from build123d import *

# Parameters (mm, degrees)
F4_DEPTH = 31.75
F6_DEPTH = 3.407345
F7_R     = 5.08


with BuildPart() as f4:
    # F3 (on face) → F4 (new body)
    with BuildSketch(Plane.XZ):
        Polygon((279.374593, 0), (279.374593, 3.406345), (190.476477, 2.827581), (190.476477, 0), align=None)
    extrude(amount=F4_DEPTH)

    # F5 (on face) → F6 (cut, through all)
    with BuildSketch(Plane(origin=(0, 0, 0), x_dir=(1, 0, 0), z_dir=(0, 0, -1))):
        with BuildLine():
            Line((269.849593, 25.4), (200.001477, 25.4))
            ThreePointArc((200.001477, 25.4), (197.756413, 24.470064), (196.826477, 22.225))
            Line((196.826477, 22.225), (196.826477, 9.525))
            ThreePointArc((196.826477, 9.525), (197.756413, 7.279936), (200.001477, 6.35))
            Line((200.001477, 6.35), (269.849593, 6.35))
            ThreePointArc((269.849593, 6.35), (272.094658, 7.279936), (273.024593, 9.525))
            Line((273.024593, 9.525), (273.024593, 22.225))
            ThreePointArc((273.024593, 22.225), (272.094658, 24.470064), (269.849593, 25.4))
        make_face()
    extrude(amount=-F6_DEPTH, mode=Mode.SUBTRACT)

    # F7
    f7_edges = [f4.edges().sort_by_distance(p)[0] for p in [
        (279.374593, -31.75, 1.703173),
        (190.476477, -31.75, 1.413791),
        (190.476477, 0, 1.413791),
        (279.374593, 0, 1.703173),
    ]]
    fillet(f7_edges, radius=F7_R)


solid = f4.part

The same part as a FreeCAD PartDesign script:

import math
import FreeCAD as App
import Part
import Sketcher
Q = App.Units.Quantity


def edges_at(feature, points):
    """Names of the edges that pass closest to the given points."""
    edges = feature.Shape.Edges
    near = lambda p: min(range(len(edges)), key=lambda i: edges[i].distToShape(Part.Vertex(*p))[0])
    return sorted({f"Edge{near(p) + 1}" for p in points})

doc = App.newDocument("Part")
body = doc.addObject("PartDesign::Body", "Body")

# Sketch on XZ plane
sketch1 = body.newObject("Sketcher::SketchObject", "Sketch")
sketch1.AttachmentSupport = (doc.getObject("XZ_Plane"), [""])
sketch1.MapMode = "FlatFace"
sketch1.addGeometry(Part.LineSegment(App.Vector(279.4, 0, 0), App.Vector(279.4, 3.4, 0)), False)
sketch1.addGeometry(Part.LineSegment(App.Vector(279.4, 3.4, 0), App.Vector(190.5, 2.8, 0)), False)
sketch1.addGeometry(Part.LineSegment(App.Vector(190.5, 2.8, 0), App.Vector(190.5, 0, 0)), False)
sketch1.addGeometry(Part.LineSegment(App.Vector(190.5, 0, 0), App.Vector(279.4, 0, 0)), False)
sketch1.addConstraint(Sketcher.Constraint("Coincident", 0, 2, 1, 1))
sketch1.addConstraint(Sketcher.Constraint("Coincident", 1, 2, 2, 1))
sketch1.addConstraint(Sketcher.Constraint("Coincident", 2, 2, 3, 1))
sketch1.addConstraint(Sketcher.Constraint("Coincident", 3, 2, 0, 1))
sketch1.addConstraint(Sketcher.Constraint("Vertical", 0))
sketch1.addConstraint(Sketcher.Constraint("Vertical", 2))
sketch1.addConstraint(Sketcher.Constraint("Horizontal", 3))
sketch1.addConstraint(Sketcher.Constraint("PointOnObject", 2, 2, -1))
sketch1.addConstraint(Sketcher.Constraint("Distance", 1, Q("3.5 in")))
sketch1.addConstraint(Sketcher.Constraint("DistanceY", 2, 2, 2, 1, 2.827581))
sketch1.addConstraint(Sketcher.Constraint("DistanceX", 3, 1, 3, 2, 88.898116))
sketch1.addConstraint(Sketcher.Constraint("DistanceX", -1, 1, 0, 2, 279.374593))
pad1 = body.newObject("PartDesign::Pad", "Pad")
pad1.Profile = sketch1
pad1.Length = Q("1.25 in")

# Sketch on XY plane
sketch2 = body.newObject("Sketcher::SketchObject", "Sketch001")
sketch2.AttachmentSupport = (doc.getObject("XY_Plane"), [""])
sketch2.MapMode = "FlatFace"
sketch2.addGeometry(Part.LineSegment(App.Vector(269.8, -25.4, 0), App.Vector(200, -25.4, 0)), False)
sketch2.addGeometry(Part.ArcOfCircle(Part.Circle(App.Vector(200, -22.2, 0), App.Vector(0, 0, 1), 3.2), math.radians(-180), math.radians(-90)), False)
sketch2.addGeometry(Part.LineSegment(App.Vector(196.8, -22.2, 0), App.Vector(196.8, -9.5, 0)), False)
sketch2.addGeometry(Part.ArcOfCircle(Part.Circle(App.Vector(200, -9.5, 0), App.Vector(0, 0, 1), 3.2), math.radians(90), math.radians(180)), False)
sketch2.addGeometry(Part.LineSegment(App.Vector(200, -6.3, 0), App.Vector(269.8, -6.3, 0)), False)
sketch2.addGeometry(Part.ArcOfCircle(Part.Circle(App.Vector(269.8, -9.5, 0), App.Vector(0, 0, 1), 3.2), math.radians(0), math.radians(90)), False)
sketch2.addGeometry(Part.LineSegment(App.Vector(273, -9.5, 0), App.Vector(273, -22.2, 0)), False)
sketch2.addGeometry(Part.ArcOfCircle(Part.Circle(App.Vector(269.8, -22.2, 0), App.Vector(0, 0, 1), 3.2), math.radians(-90), math.radians(0)), False)
sketch2.addConstraint(Sketcher.Constraint("Tangent", 0, 2, 1, 2))
sketch2.addConstraint(Sketcher.Constraint("Tangent", 1, 1, 2, 1))
sketch2.addConstraint(Sketcher.Constraint("Tangent", 2, 2, 3, 2))
sketch2.addConstraint(Sketcher.Constraint("Tangent", 3, 1, 4, 1))
sketch2.addConstraint(Sketcher.Constraint("Tangent", 4, 2, 5, 2))
sketch2.addConstraint(Sketcher.Constraint("Tangent", 5, 1, 6, 1))
sketch2.addConstraint(Sketcher.Constraint("Tangent", 6, 2, 7, 2))
sketch2.addConstraint(Sketcher.Constraint("Tangent", 7, 1, 0, 1))
sketch2.addConstraint(Sketcher.Constraint("Horizontal", 0))
sketch2.addConstraint(Sketcher.Constraint("Vertical", 2))
sketch2.addConstraint(Sketcher.Constraint("Horizontal", 4))
sketch2.addConstraint(Sketcher.Constraint("Vertical", 6))
sketch2.addConstraint(Sketcher.Constraint("Equal", 1, 3))
sketch2.addConstraint(Sketcher.Constraint("Equal", 3, 5))
sketch2.addConstraint(Sketcher.Constraint("Equal", 5, 7))
sketch2.addConstraint(Sketcher.Constraint("DistanceY", 2, 1, 2, 2, Q("0.5 in")))
sketch2.addConstraint(Sketcher.Constraint("DistanceY", 0, 2, -1, 1, Q("1 in")))
sketch2.addConstraint(Sketcher.Constraint("Radius", 1, Q("0.125 in")))
sketch2.addConstraint(Sketcher.Constraint("DistanceX", 0, 2, 0, 1, 69.848116))
sketch2.addConstraint(Sketcher.Constraint("DistanceX", -1, 1, 1, 3, 200.001477))
pocket1 = body.newObject("PartDesign::Pocket", "Pocket")
pocket1.Profile = sketch2
pocket1.Type = "ThroughAll"
pocket1.Reversed = True
doc.recompute()

fillet = body.newObject("PartDesign::Fillet", "Fillet")
fillet.Base = (pocket1, edges_at(pocket1, [
    (279.375, -31.75, 1.703),
    (190.476, -31.75, 1.414),
    (190.476, 0, 1.414),
    (279.375, 0, 1.703),
]))
fillet.Radius = Q("0.2 in")

doc.recompute()
